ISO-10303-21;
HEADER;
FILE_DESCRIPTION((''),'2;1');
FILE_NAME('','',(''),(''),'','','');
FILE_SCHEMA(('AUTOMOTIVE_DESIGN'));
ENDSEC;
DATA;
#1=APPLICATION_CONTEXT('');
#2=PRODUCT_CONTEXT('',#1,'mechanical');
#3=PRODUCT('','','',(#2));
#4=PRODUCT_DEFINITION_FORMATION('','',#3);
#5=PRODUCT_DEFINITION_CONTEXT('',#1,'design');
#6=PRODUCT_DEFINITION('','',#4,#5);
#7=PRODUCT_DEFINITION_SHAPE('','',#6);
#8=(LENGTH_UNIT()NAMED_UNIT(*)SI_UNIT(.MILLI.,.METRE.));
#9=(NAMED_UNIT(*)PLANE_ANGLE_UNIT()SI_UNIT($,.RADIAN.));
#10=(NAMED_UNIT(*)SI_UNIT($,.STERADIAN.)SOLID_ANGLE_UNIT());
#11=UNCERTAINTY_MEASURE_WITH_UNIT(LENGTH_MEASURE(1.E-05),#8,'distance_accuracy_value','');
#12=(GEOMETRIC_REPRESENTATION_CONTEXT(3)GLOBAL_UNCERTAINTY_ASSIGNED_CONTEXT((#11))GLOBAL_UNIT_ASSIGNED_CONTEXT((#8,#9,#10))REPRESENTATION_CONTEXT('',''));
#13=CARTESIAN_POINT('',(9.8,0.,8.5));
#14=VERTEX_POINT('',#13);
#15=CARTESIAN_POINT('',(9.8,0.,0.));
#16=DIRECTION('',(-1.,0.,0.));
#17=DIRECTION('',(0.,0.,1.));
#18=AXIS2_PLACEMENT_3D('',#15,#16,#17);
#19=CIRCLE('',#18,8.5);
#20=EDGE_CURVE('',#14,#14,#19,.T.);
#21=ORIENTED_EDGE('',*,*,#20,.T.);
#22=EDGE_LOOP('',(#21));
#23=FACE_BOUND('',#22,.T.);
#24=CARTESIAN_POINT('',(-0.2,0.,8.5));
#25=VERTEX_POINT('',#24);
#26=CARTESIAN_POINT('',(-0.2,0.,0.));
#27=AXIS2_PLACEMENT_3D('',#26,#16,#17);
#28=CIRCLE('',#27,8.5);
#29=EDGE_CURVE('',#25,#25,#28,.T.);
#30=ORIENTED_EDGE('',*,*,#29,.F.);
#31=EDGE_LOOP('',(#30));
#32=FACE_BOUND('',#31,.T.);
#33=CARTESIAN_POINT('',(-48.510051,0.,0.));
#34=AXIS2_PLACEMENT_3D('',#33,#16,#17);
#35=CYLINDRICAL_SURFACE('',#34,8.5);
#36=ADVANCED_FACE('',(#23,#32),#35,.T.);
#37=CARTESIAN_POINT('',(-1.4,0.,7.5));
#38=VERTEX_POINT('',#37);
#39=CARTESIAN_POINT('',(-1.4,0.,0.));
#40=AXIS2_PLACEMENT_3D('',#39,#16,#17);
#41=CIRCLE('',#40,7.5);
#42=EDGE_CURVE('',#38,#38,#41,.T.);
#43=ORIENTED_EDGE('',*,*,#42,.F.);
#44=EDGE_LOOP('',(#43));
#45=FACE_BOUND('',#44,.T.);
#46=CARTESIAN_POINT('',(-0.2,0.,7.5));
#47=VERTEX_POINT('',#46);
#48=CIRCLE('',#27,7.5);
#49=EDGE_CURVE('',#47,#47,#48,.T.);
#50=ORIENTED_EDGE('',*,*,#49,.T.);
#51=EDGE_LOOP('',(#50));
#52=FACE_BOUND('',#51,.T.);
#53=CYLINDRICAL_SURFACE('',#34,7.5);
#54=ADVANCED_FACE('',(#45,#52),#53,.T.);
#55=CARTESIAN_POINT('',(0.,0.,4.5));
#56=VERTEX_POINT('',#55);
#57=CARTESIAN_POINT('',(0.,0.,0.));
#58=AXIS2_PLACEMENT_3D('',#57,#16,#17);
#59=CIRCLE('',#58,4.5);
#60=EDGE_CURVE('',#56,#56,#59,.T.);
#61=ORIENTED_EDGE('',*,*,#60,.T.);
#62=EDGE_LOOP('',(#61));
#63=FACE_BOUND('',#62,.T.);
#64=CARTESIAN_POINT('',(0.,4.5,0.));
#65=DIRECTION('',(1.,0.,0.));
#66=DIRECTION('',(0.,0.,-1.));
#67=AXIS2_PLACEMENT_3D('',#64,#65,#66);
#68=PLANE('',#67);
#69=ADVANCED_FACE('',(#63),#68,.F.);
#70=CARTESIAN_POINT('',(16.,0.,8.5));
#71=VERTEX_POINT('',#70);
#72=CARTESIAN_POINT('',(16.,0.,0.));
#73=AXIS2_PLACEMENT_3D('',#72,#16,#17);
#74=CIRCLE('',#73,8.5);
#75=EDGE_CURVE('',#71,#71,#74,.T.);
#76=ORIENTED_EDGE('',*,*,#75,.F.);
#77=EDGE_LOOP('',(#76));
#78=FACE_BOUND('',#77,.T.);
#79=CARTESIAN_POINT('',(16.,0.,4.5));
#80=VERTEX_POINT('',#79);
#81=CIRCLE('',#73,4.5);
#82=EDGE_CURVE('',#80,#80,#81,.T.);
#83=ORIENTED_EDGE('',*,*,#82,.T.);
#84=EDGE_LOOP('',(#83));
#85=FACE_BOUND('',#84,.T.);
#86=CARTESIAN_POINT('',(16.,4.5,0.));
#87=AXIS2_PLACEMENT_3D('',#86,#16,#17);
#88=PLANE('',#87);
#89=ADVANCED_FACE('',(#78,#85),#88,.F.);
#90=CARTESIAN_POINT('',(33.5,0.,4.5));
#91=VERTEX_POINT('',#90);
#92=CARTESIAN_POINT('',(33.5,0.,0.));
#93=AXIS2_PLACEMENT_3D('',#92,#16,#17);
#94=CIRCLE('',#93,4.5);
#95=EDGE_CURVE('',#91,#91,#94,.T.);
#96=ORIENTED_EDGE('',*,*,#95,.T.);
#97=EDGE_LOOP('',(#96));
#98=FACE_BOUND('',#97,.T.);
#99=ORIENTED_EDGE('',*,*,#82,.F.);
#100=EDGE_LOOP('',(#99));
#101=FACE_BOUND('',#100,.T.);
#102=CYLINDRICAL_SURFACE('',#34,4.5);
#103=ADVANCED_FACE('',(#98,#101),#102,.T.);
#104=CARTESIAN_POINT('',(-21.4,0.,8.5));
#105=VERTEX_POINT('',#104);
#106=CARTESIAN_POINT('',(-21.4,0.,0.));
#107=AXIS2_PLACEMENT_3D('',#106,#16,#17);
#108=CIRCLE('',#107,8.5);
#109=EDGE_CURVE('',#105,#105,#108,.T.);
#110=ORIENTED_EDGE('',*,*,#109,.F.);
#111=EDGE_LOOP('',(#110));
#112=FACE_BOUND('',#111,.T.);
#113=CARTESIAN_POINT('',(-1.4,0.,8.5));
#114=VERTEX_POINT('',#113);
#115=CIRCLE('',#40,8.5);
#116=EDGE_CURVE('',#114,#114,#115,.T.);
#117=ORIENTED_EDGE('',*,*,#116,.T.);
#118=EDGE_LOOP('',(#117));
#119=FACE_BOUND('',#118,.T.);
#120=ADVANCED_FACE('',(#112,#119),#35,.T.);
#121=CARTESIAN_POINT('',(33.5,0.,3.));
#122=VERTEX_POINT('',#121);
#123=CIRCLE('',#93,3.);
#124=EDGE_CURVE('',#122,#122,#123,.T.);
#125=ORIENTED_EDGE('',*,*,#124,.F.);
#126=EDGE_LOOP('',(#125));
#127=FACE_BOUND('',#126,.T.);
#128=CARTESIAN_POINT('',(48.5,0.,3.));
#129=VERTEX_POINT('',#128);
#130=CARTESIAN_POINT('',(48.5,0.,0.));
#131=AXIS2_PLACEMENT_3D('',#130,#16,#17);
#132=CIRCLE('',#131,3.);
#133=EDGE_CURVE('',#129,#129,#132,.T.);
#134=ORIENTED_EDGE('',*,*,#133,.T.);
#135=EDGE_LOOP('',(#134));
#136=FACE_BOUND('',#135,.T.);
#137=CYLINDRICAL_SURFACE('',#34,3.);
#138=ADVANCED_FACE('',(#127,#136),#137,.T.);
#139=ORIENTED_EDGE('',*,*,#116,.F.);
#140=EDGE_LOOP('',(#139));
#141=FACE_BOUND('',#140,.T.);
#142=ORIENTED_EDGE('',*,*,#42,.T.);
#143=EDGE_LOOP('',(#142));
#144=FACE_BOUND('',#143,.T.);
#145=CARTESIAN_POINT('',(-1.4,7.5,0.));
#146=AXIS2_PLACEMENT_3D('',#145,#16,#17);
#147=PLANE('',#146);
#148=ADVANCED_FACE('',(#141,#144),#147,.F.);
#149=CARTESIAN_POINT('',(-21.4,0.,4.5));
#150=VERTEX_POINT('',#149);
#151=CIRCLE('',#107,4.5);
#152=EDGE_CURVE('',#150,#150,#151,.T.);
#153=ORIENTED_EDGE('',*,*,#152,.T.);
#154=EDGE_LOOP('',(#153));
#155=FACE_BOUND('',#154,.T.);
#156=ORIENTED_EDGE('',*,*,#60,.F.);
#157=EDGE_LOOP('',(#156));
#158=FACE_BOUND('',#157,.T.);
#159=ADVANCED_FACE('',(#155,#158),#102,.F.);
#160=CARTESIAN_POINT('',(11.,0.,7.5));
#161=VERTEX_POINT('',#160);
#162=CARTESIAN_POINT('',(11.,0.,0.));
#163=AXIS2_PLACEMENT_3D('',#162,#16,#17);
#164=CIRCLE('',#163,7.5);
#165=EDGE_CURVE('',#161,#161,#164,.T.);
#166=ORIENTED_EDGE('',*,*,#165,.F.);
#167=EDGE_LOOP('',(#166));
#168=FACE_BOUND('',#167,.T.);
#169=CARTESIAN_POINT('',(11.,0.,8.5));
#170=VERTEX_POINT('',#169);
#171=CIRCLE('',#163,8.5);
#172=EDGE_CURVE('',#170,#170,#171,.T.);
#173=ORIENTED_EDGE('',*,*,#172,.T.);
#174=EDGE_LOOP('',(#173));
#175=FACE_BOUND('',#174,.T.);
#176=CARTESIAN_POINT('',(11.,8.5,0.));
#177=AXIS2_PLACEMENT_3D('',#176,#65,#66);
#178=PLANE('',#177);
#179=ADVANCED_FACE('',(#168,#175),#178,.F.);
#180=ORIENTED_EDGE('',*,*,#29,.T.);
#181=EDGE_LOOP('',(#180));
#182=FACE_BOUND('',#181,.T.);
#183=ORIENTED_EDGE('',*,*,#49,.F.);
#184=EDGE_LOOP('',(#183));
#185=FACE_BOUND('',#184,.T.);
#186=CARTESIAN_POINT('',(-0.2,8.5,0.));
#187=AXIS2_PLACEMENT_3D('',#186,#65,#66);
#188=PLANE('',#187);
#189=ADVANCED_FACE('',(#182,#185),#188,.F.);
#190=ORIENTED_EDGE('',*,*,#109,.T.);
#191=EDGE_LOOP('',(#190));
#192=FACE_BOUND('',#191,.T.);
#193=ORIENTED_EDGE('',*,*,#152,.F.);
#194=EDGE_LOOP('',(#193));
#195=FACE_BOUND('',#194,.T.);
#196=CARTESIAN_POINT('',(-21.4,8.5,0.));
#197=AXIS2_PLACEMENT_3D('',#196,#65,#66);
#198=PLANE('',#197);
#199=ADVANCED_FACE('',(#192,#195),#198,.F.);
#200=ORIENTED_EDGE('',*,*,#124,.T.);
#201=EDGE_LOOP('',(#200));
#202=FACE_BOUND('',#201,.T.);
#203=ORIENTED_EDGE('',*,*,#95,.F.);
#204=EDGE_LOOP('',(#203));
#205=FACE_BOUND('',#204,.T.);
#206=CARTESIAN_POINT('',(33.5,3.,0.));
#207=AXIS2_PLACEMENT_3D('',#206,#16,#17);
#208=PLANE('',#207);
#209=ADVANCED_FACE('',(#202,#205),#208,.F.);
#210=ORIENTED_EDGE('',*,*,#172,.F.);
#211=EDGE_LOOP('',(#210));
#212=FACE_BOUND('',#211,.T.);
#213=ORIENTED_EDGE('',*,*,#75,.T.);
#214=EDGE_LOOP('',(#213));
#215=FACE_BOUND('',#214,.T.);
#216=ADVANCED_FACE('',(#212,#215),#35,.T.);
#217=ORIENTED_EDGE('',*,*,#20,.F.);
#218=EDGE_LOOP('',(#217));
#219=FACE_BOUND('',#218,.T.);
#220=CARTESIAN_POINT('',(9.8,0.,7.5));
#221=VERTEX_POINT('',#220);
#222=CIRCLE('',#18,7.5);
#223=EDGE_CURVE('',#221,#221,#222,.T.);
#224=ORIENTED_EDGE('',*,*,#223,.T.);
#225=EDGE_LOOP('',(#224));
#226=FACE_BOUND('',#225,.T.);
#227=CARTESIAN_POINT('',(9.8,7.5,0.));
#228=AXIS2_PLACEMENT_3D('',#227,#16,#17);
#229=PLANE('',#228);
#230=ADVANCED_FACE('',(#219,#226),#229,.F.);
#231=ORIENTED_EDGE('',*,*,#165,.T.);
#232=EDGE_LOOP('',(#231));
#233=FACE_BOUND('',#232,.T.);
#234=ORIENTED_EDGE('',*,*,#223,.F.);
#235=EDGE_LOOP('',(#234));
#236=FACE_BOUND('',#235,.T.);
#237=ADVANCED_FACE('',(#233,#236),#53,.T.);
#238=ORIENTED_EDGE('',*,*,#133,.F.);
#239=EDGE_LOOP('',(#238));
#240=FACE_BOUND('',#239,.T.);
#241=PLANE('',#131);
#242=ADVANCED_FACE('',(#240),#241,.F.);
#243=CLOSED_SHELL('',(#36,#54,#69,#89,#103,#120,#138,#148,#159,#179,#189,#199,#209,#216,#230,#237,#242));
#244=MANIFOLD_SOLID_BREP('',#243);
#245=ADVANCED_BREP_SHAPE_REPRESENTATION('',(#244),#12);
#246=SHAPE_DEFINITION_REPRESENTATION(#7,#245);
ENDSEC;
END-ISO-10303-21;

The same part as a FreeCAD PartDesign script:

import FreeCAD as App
import Part
import Sketcher


def add_polygon(sketch, points):
    """Adds a closed chain of lines whose ends are joined by coincident constraints."""
    first, n = sketch.GeometryCount, len(points)
    for a, b in zip(points, points[1:] + points[:1]):
        sketch.addGeometry(Part.LineSegment(App.Vector(*a, 0), App.Vector(*b, 0)), False)
    for i in range(n):
        sketch.addConstraint(Sketcher.Constraint("Coincident", first + i, 2, first + (i + 1) % n, 1))

doc = App.newDocument("Part")
body = doc.addObject("PartDesign::Body", "Body")

# Sketch on XY plane
sketch1 = body.newObject("Sketcher::SketchObject", "Sketch")
sketch1.AttachmentSupport = (doc.getObject("XY_Plane"), [""])
sketch1.MapMode = "FlatFace"
add_polygon(sketch1, [(-21.4, 4.5), (0, 4.5), (0, 0), (48.5, 0), (48.5, 3), (33.5, 3), (33.5, 4.5), (16, 4.5), (16, 8.5), (11, 8.5), (11, 7.5), (9.8, 7.5), (9.8, 8.5), (-0.2, 8.5), (-0.2, 7.5), (-1.4, 7.5), (-1.4, 8.5), (-21.4, 8.5)])  # lines 0-17
sketch1.addConstraint(Sketcher.Constraint("Horizontal", 0))
sketch1.addConstraint(Sketcher.Constraint("Vertical", 1))
sketch1.addConstraint(Sketcher.Constraint("Horizontal", 2))
sketch1.addConstraint(Sketcher.Constraint("Vertical", 3))
sketch1.addConstraint(Sketcher.Constraint("Horizontal", 4))
sketch1.addConstraint(Sketcher.Constraint("Vertical", 5))
sketch1.addConstraint(Sketcher.Constraint("Horizontal", 6))
sketch1.addConstraint(Sketcher.Constraint("Vertical", 7))
sketch1.addConstraint(Sketcher.Constraint("Horizontal", 8))
sketch1.addConstraint(Sketcher.Constraint("Vertical", 9))
sketch1.addConstraint(Sketcher.Constraint("Horizontal", 10))
sketch1.addConstraint(Sketcher.Constraint("Vertical", 11))
sketch1.addConstraint(Sketcher.Constraint("Horizontal", 12))
sketch1.addConstraint(Sketcher.Constraint("Vertical", 13))
sketch1.addConstraint(Sketcher.Constraint("Horizontal", 14))
sketch1.addConstraint(Sketcher.Constraint("Vertical", 15))
sketch1.addConstraint(Sketcher.Constraint("Horizontal", 16))
sketch1.addConstraint(Sketcher.Constraint("Vertical", 17))
sketch1.addConstraint(Sketcher.Constraint("Coincident", 1, 2, -1, 1))
sketch1.addConstraint(Sketcher.Constraint("Horizontal", 0, 2, 5, 2))
sketch1.addConstraint(Sketcher.Constraint("Horizontal", 8, 2, 11, 2))
sketch1.addConstraint(Sketcher.Constraint("Horizontal", 10, 2, 13, 2))
sketch1.addConstraint(Sketcher.Constraint("Horizontal", 12, 2, 15, 2))
sketch1.addConstraint(Sketcher.Constraint("Equal", 10, 14))
sketch1.addConstraint(Sketcher.Constraint("DistanceX", 4, 2, 4, 1, 15.0))
sketch1.addConstraint(Sketcher.Constraint("DistanceX", 8, 2, 8, 1, 5.0))
sketch1.addConstraint(Sketcher.Constraint("DistanceX", 12, 2, 12, 1, 10.0))
sketch1.addConstraint(Sketcher.Constraint("DistanceX", 16, 2, 16, 1, 20.0))
sketch1.addConstraint(Sketcher.Constraint("DistanceY", 3, 1, 3, 2, 3.0))
sketch1.addConstraint(Sketcher.Constraint("DistanceY", 7, 1, 7, 2, 4.0))
sketch1.addConstraint(Sketcher.Constraint("DistanceY", 9, 2, 9, 1, 1.0))
sketch1.addConstraint(Sketcher.Constraint("DistanceX", 0, 1, 0, 2, 21.4))
sketch1.addConstraint(Sketcher.Constraint("DistanceX", 2, 1, 2, 2, 48.5))
sketch1.addConstraint(Sketcher.Constraint("DistanceX", 6, 2, 6, 1, 17.5))
sketch1.addConstraint(Sketcher.Constraint("DistanceY", 1, 2, 1, 1, 4.5))
revolution = body.newObject("PartDesign::Revolution", "Revolution")
revolution.Profile = sketch1
revolution.ReferenceAxis = (sketch1, ["H_Axis"])
revolution.Angle = 360

doc.recompute()
